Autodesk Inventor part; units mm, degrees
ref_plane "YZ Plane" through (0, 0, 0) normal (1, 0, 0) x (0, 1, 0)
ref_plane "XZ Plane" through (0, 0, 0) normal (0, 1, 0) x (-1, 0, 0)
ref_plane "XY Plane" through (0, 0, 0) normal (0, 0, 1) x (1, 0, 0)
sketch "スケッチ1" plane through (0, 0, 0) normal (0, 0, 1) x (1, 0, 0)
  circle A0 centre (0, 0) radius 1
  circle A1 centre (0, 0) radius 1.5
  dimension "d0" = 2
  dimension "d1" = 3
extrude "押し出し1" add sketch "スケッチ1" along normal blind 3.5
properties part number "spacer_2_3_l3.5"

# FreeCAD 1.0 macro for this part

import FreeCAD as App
import Part
import Sketcher

doc = App.newDocument("Part")
body = doc.addObject("PartDesign::Body", "Body")

sketch1 = doc.addObject("Sketcher::SketchObject", "Sketch")
body.addObject(sketch1)
sketch1.AttachmentSupport = (doc.XY_Plane, [""])
sketch1.MapMode = "FlatFace"
sketch1.addGeometry(Part.Circle(App.Vector(0, 0, 0), App.Vector(0, 0, 1), 1.5), False)
sketch1.addGeometry(Part.Circle(App.Vector(0, 0, 0), App.Vector(0, 0, 1), 1), False)
sketch1.addConstraint(Sketcher.Constraint("Coincident", 0, 3, -1, 1))
sketch1.addConstraint(Sketcher.Constraint("Coincident", 1, 3, -1, 1))
sketch1.addConstraint(Sketcher.Constraint("Diameter", 0, 3.0))
sketch1.addConstraint(Sketcher.Constraint("Diameter", 1, 2.0))
pad1 = doc.addObject("PartDesign::Pad", "Pad")
body.addObject(pad1)
pad1.Profile = sketch1
pad1.Length = 3.5

doc.recompute()
